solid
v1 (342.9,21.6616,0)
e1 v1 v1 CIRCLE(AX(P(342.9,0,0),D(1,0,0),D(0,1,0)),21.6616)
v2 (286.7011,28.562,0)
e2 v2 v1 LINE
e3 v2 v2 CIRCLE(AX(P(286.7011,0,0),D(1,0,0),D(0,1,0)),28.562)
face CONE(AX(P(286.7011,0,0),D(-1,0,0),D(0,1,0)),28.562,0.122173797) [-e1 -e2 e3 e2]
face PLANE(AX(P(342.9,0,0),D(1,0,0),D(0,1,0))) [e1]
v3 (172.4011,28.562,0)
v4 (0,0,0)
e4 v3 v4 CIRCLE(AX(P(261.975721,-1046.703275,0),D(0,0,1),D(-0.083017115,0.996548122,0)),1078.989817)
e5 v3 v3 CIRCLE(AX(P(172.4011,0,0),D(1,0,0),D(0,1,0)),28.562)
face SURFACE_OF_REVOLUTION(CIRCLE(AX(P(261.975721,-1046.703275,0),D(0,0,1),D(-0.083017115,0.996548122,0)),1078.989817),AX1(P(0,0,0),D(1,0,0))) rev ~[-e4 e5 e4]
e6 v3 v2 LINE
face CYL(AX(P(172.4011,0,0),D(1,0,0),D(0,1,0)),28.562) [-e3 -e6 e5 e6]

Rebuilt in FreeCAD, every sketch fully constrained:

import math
import FreeCAD as App
import Part
import Sketcher

V = App.Vector
Q = App.Units.Quantity

doc = App.newDocument("Part")
params = doc.addObject("Spreadsheet::Sheet", "Params")
for row, (alias, value) in enumerate([
    ("sketch1_width", "13.5 in"),
    ("sketch1_width2", "4.5 in"),
    ("revolution_angle", "360 deg"),
], start=1):
    params.set(f"A{row}", alias)
    params.set(f"B{row}", "=" + value)
    params.setAlias(f"B{row}", alias)

body = doc.addObject("PartDesign::Body", "Body")

# Sketch on XY plane
sketch1 = body.newObject("Sketcher::SketchObject", "Sketch")
sketch1.AttachmentSupport = (doc.getObject("XY_Plane"), [""])
sketch1.MapMode = "FlatFace"
sketch1.addGeometry([
    Part.ArcOfCircle(Part.Circle(V(261.9756, -1046.7023, 0), V(0, 0, 1), 1078.988835), math.radians(94.762009), math.radians(104.0517)),  # 0
    Part.LineSegment(V(0, 0, 0), V(342.9, 0, 0)),  # 1
    Part.LineSegment(V(342.9, 0, 0), V(342.9, 21.6616, 0)),  # 2
    Part.LineSegment(V(342.9, 21.6616, 0), V(286.7011, 28.562, 0)),  # 3
    Part.LineSegment(V(286.7011, 28.562, 0), V(172.4011, 28.562, 0)),  # 4
], False)
sketch1.addConstraint([
    Sketcher.Constraint("Coincident", 0, 2, 1, 1),
    Sketcher.Constraint("Coincident", 1, 2, 2, 1),
    Sketcher.Constraint("Coincident", 2, 2, 3, 1),
    Sketcher.Constraint("Coincident", 3, 2, 4, 1),
    Sketcher.Constraint("Coincident", 4, 2, 0, 1),
    Sketcher.Constraint("Horizontal", 1),
    Sketcher.Constraint("Vertical", 2),
    Sketcher.Constraint("Horizontal", 4),
    Sketcher.Constraint("PointOnObject", 1, 2, -1),
    Sketcher.Constraint("DistanceX", 1, 1, 1, 2, Q("13.5 in")),
    Sketcher.Constraint("DistanceX", 4, 2, 4, 1, Q("4.5 in")),
    Sketcher.Constraint("DistanceX", -1, 1, 1, 2, Q("13.5 in")),
    Sketcher.Constraint("DistanceX", -1, 1, 0, 3, Q("10.314 in")),
    Sketcher.Constraint("Angle", 3, Q("173 deg")),
    Sketcher.Constraint("DistanceY", 0, 3, -1, 1, Q("1046.7023 mm")),
    Sketcher.Constraint("DistanceY", 2, 1, 2, 2, Q("21.6616 mm")),
])
sketch1.setExpression("Constraints[9]", "Params.sketch1_width")
sketch1.setExpression("Constraints[10]", "Params.sketch1_width2")
revolution = body.newObject("PartDesign::Revolution", "Revolution")
revolution.Profile = sketch1
revolution.ReferenceAxis = (sketch1, ["H_Axis"])
revolution.setExpression("Angle", "Params.revolution_angle")

doc.recompute()
